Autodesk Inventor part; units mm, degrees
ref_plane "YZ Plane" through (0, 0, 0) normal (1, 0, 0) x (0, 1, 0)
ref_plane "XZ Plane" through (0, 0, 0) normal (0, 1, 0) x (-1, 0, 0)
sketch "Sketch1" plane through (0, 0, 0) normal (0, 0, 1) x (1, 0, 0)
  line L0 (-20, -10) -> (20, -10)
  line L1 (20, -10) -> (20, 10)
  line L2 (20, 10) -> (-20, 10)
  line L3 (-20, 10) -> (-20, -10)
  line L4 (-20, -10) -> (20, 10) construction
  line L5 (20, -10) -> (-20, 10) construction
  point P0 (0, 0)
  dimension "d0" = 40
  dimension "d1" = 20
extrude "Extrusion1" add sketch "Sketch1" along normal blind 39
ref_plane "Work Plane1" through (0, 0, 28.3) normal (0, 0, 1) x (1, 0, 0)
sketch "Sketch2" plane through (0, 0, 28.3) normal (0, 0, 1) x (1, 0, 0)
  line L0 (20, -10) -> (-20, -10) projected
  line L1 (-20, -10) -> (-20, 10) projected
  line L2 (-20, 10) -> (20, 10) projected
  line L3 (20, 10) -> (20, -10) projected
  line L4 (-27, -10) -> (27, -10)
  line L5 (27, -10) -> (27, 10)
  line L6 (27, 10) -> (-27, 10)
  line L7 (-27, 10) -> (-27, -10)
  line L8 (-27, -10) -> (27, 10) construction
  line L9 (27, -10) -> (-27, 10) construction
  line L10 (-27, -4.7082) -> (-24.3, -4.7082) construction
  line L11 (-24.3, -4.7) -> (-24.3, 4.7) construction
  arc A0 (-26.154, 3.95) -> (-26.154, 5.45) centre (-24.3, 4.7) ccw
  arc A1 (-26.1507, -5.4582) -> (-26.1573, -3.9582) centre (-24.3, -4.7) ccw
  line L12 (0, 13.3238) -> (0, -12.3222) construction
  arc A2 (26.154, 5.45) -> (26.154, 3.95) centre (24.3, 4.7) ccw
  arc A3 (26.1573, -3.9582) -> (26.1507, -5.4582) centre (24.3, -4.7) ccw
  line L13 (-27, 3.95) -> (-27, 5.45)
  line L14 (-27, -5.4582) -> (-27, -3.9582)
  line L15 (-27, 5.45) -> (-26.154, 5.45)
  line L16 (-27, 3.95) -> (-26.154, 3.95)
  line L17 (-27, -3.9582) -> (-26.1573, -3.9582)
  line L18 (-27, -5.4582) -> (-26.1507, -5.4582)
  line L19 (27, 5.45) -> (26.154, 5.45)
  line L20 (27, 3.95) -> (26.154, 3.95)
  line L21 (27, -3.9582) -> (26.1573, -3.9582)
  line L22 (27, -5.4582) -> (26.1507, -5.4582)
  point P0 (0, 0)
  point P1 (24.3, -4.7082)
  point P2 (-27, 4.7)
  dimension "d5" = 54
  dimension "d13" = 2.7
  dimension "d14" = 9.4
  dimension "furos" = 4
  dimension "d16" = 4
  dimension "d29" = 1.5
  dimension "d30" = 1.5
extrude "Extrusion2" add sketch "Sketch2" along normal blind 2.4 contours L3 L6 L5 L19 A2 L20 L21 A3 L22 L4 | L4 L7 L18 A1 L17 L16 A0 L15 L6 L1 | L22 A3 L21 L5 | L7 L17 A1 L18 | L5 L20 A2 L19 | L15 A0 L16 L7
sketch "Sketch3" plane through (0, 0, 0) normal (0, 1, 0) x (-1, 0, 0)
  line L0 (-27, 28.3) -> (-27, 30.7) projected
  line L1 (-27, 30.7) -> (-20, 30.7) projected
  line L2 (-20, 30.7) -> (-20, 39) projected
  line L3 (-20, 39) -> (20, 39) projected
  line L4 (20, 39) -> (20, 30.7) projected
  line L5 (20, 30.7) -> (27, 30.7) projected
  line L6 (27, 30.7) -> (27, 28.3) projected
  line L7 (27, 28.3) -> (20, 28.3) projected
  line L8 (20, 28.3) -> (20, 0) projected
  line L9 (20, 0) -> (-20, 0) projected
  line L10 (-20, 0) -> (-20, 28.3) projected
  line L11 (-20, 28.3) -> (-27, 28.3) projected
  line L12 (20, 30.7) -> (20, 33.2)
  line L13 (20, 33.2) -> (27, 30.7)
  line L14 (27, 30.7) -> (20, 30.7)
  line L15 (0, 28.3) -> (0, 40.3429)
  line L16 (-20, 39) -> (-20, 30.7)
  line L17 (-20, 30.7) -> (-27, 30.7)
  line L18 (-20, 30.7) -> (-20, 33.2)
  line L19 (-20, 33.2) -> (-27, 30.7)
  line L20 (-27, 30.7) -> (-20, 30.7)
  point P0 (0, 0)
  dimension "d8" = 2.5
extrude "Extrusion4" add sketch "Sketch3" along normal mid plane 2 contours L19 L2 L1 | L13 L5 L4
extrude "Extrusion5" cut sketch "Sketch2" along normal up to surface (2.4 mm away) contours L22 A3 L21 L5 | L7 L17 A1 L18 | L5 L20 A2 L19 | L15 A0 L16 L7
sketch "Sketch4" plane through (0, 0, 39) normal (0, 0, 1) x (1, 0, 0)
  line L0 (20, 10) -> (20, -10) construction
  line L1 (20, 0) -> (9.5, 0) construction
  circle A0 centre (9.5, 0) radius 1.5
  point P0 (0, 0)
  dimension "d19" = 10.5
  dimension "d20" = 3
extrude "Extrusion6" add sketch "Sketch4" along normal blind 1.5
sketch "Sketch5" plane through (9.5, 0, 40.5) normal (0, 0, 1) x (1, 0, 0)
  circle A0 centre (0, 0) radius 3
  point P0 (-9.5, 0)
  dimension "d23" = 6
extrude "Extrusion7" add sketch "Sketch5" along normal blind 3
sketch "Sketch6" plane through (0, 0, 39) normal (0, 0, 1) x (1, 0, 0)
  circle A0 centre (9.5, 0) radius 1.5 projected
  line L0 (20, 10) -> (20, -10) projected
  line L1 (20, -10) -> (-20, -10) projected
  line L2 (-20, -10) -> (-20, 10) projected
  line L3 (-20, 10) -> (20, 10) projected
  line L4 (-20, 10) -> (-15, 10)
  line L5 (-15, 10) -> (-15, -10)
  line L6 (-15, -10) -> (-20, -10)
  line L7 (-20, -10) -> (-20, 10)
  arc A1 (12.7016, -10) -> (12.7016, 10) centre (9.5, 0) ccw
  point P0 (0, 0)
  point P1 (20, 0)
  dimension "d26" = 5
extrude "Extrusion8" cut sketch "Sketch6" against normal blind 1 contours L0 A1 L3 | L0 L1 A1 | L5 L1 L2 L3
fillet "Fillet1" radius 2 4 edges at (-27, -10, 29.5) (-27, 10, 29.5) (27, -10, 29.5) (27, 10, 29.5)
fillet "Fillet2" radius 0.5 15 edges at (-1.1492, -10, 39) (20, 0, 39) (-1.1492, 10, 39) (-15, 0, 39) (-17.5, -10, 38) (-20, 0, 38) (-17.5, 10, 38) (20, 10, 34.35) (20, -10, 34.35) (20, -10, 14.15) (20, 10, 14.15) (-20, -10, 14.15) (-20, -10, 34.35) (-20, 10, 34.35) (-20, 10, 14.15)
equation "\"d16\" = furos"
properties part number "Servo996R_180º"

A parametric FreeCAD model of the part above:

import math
import FreeCAD as App
import Part
import Sketcher


def edges_at(feature, points):
    """Names of the edges that pass closest to the given points."""
    edges = feature.Shape.Edges
    near = lambda p: min(range(len(edges)), key=lambda i: edges[i].distToShape(Part.Vertex(*p))[0])
    return sorted({f"Edge{near(p) + 1}" for p in points})

doc = App.newDocument("Part")
body = doc.addObject("PartDesign::Body", "Body")

sketch1 = body.newObject("Sketcher::SketchObject", "Sketch")
sketch1.AttachmentSupport = (doc.getObject("XY_Plane"), [""])
sketch1.MapMode = "FlatFace"
sketch1.addGeometry(Part.LineSegment(App.Vector(-20, 10, 0), App.Vector(-20, -10, 0)), False)
sketch1.addGeometry(Part.LineSegment(App.Vector(-20, -10, 0), App.Vector(20, -10, 0)), False)
sketch1.addGeometry(Part.LineSegment(App.Vector(20, -10, 0), App.Vector(20, 10, 0)), False)
sketch1.addGeometry(Part.LineSegment(App.Vector(20, 10, 0), App.Vector(-20, 10, 0)), False)
sketch1.addConstraint(Sketcher.Constraint("Coincident", 0, 2, 1, 1))
sketch1.addConstraint(Sketcher.Constraint("Coincident", 1, 2, 2, 1))
sketch1.addConstraint(Sketcher.Constraint("Coincident", 2, 2, 3, 1))
sketch1.addConstraint(Sketcher.Constraint("Coincident", 3, 2, 0, 1))
sketch1.addConstraint(Sketcher.Constraint("Vertical", 0))
sketch1.addConstraint(Sketcher.Constraint("Horizontal", 1))
sketch1.addConstraint(Sketcher.Constraint("Vertical", 2))
sketch1.addConstraint(Sketcher.Constraint("Horizontal", 3))
sketch1.addConstraint(Sketcher.Constraint("Symmetric", 0, 2, 2, 2, -1, 1))
sketch1.addConstraint(Sketcher.Constraint("DistanceX", 1, 1, 1, 2, 40.0))
sketch1.addConstraint(Sketcher.Constraint("DistanceY", 0, 2, 0, 1, 20.0))
pad1 = body.newObject("PartDesign::Pad", "Pad")
pad1.Profile = sketch1
pad1.Length = 39

sketch2 = body.newObject("Sketcher::SketchObject", "Sketch001")
sketch2.AttachmentSupport = (doc.getObject("XY_Plane"), [""])
sketch2.MapMode = "FlatFace"
sketch2.AttachmentOffset = App.Placement(App.Vector(0, 0, 28.3), App.Rotation())
sketch2.addGeometry(Part.LineSegment(App.Vector(20, 10, 0), App.Vector(20, -10, 0)), False)
sketch2.addGeometry(Part.LineSegment(App.Vector(20, -10, 0), App.Vector(27, -10, 0)), False)
sketch2.addGeometry(Part.LineSegment(App.Vector(27, -10, 0), App.Vector(27, 10, 0)), False)
sketch2.addGeometry(Part.LineSegment(App.Vector(27, 10, 0), App.Vector(20, 10, 0)), False)
sketch2.addGeometry(Part.LineSegment(App.Vector(-27, -10, 0), App.Vector(-20, -10, 0)), False)
sketch2.addGeometry(Part.LineSegment(App.Vector(-20, -10, 0), App.Vector(-20, 10, 0)), False)
sketch2.addGeometry(Part.LineSegment(App.Vector(-20, 10, 0), App.Vector(-27, 10, 0)), False)
sketch2.addGeometry(Part.LineSegment(App.Vector(-27, 10, 0), App.Vector(-27, -10, 0)), False)
sketch2.addConstraint(Sketcher.Constraint("Coincident", 0, 2, 1, 1))
sketch2.addConstraint(Sketcher.Constraint("Coincident", 1, 2, 2, 1))
sketch2.addConstraint(Sketcher.Constraint("Coincident", 2, 2, 3, 1))
sketch2.addConstraint(Sketcher.Constraint("Coincident", 3, 2, 0, 1))
sketch2.addConstraint(Sketcher.Constraint("Coincident", 4, 2, 5, 1))
sketch2.addConstraint(Sketcher.Constraint("Coincident", 5, 2, 6, 1))
sketch2.addConstraint(Sketcher.Constraint("Coincident", 6, 2, 7, 1))
sketch2.addConstraint(Sketcher.Constraint("Coincident", 7, 2, 4, 1))
sketch2.addConstraint(Sketcher.Constraint("Vertical", 0))
sketch2.addConstraint(Sketcher.Constraint("Horizontal", 1))
sketch2.addConstraint(Sketcher.Constraint("Vertical", 2))
sketch2.addConstraint(Sketcher.Constraint("Horizontal", 3))
sketch2.addConstraint(Sketcher.Constraint("Horizontal", 4))
sketch2.addConstraint(Sketcher.Constraint("Vertical", 5))
sketch2.addConstraint(Sketcher.Constraint("Horizontal", 6))
sketch2.addConstraint(Sketcher.Constraint("Vertical", 7))
sketch2.addConstraint(Sketcher.Constraint("Symmetric", 3, 2, 4, 2, -1, 1))
sketch2.addConstraint(Sketcher.Constraint("Symmetric", 1, 2, 6, 2, -1, 1))
sketch2.addConstraint(Sketcher.Constraint("Horizontal", 1, 2, 4, 2))
sketch2.addConstraint(Sketcher.Constraint("DistanceX", 6, 2, 2, 2, 54.0))
sketch2.addConstraint(Sketcher.Constraint("DistanceX", 1, 1, 1, 2, 7.0))
sketch2.addConstraint(Sketcher.Constraint("DistanceY", 0, 2, 0, 1, 20.0))
pad2 = body.newObject("PartDesign::Pad", "Pad001")
pad2.Profile = sketch2
pad2.Length = 2.4

sketch3 = body.newObject("Sketcher::SketchObject", "Sketch002")
sketch3.AttachmentSupport = (doc.getObject("XZ_Plane"), [""])
sketch3.MapMode = "FlatFace"
sketch3.addGeometry(Part.LineSegment(App.Vector(20, 33.2, 0), App.Vector(27, 30.7, 0)), False)
sketch3.addGeometry(Part.LineSegment(App.Vector(27, 30.7, 0), App.Vector(20, 30.7, 0)), False)
sketch3.addGeometry(Part.LineSegment(App.Vector(20, 30.7, 0), App.Vector(20, 33.2, 0)), False)
sketch3.addGeometry(Part.LineSegment(App.Vector(-27, 30.7, 0), App.Vector(-20, 33.2, 0)), False)
sketch3.addGeometry(Part.LineSegment(App.Vector(-20, 33.2, 0), App.Vector(-20, 30.7, 0)), False)
sketch3.addGeometry(Part.LineSegment(App.Vector(-20, 30.7, 0), App.Vector(-27, 30.7, 0)), False)
sketch3.addConstraint(Sketcher.Constraint("Coincident", 0, 2, 1, 1))
sketch3.addConstraint(Sketcher.Constraint("Coincident", 1, 2, 2, 1))
sketch3.addConstraint(Sketcher.Constraint("Coincident", 2, 2, 0, 1))
sketch3.addConstraint(Sketcher.Constraint("Coincident", 3, 2, 4, 1))
sketch3.addConstraint(Sketcher.Constraint("Coincident", 4, 2, 5, 1))
sketch3.addConstraint(Sketcher.Constraint("Coincident", 5, 2, 3, 1))
sketch3.addConstraint(Sketcher.Constraint("Horizontal", 1))
sketch3.addConstraint(Sketcher.Constraint("Vertical", 2))
sketch3.addConstraint(Sketcher.Constraint("Vertical", 4))
sketch3.addConstraint(Sketcher.Constraint("Horizontal", 5))
sketch3.addConstraint(Sketcher.Constraint("Symmetric", 2, 2, 3, 2, -2))
sketch3.addConstraint(Sketcher.Constraint("Symmetric", 0, 2, 5, 2, -2))
sketch3.addConstraint(Sketcher.Constraint("DistanceY", 2, 1, 2, 2, 2.5))
sketch3.addConstraint(Sketcher.Constraint("DistanceX", 1, 2, 1, 1, 7.0))
sketch3.addConstraint(Sketcher.Constraint("DistanceX", -1, 1, 0, 2, 27.0))
sketch3.addConstraint(Sketcher.Constraint("DistanceY", -1, 1, 0, 2, 30.7))
pad3 = body.newObject("PartDesign::Pad", "Pad002")
pad3.Profile = sketch3
pad3.Length = 2
pad3.Midplane = True

sketch4 = body.newObject("Sketcher::SketchObject", "Sketch003")
sketch4.AttachmentSupport = (doc.getObject("XY_Plane"), [""])
sketch4.MapMode = "FlatFace"
sketch4.AttachmentOffset = App.Placement(App.Vector(0, 0, 28.3), App.Rotation())
sketch4.addGeometry(Part.LineSegment(App.Vector(26.1507, -5.4582, 0), App.Vector(27, -5.4582, 0)), False)
sketch4.addGeometry(Part.LineSegment(App.Vector(27, -5.4582, 0), App.Vector(27, -3.9582, 0)), False)
sketch4.addGeometry(Part.LineSegment(App.Vector(27, -3.9582, 0), App.Vector(26.1573, -3.9582, 0)), False)
sketch4.addGeometry(Part.ArcOfCircle(Part.Circle(App.Vector(24.3, -4.7, 0), App.Vector(0, 0, 1), 1.999958), math.radians(21.771618), math.radians(337.72193)), False)
sketch4.addGeometry(Part.LineSegment(App.Vector(-27, -3.9582, 0), App.Vector(-27, -5.4582, 0)), False)
sketch4.addGeometry(Part.LineSegment(App.Vector(-27, -5.4582, 0), App.Vector(-26.1507, -5.4582, 0)), False)
sketch4.addGeometry(Part.ArcOfCircle(Part.Circle(App.Vector(-24.3, -4.7, 0), App.Vector(0, 0, 1), 1.999989), math.radians(-157.72193), math.radians(158.228382)), False)
sketch4.addGeometry(Part.LineSegment(App.Vector(-26.1573, -3.9582, 0), App.Vector(-27, -3.9582, 0)), False)
sketch4.addGeometry(Part.LineSegment(App.Vector(27, 3.95, 0), App.Vector(27, 5.45, 0)), False)
sketch4.addGeometry(Part.LineSegment(App.Vector(27, 5.45, 0), App.Vector(26.154, 5.45, 0)), False)
sketch4.addGeometry(Part.ArcOfCircle(Part.Circle(App.Vector(24.3, 4.7, 0), App.Vector(0, 0, 1), 1.999954), math.radians(22.024846), math.radians(337.975154)), False)
sketch4.addGeometry(Part.LineSegment(App.Vector(26.154, 3.95, 0), App.Vector(27, 3.95, 0)), False)
sketch4.addGeometry(Part.LineSegment(App.Vector(-26.154, 5.45, 0), App.Vector(-27, 5.45, 0)), False)
sketch4.addGeometry(Part.LineSegment(App.Vector(-27, 5.45, 0), App.Vector(-27, 3.95, 0)), False)
sketch4.addGeometry(Part.LineSegment(App.Vector(-27, 3.95, 0), App.Vector(-26.154, 3.95, 0)), False)
sketch4.addGeometry(Part.ArcOfCircle(Part.Circle(App.Vector(-24.3, 4.7, 0), App.Vector(0, 0, 1), 1.999954), math.radians(-157.975154), math.radians(157.975154)), False)
sketch4.addConstraint(Sketcher.Constraint("Coincident", 0, 2, 1, 1))
sketch4.addConstraint(Sketcher.Constraint("Coincident", 1, 2, 2, 1))
sketch4.addConstraint(Sketcher.Constraint("Coincident", 2, 2, 3, 1))
sketch4.addConstraint(Sketcher.Constraint("Coincident", 3, 2, 0, 1))
sketch4.addConstraint(Sketcher.Constraint("Coincident", 4, 2, 5, 1))
sketch4.addConstraint(Sketcher.Constraint("Coincident", 5, 2, 6, 1))
sketch4.addConstraint(Sketcher.Constraint("Coincident", 6, 2, 7, 1))
sketch4.addConstraint(Sketcher.Constraint("Coincident", 7, 2, 4, 1))
sketch4.addConstraint(Sketcher.Constraint("Coincident", 8, 2, 9, 1))
sketch4.addConstraint(Sketcher.Constraint("Coincident", 9, 2, 10, 1))
sketch4.addConstraint(Sketcher.Constraint("Coincident", 10, 2, 11, 1))
sketch4.addConstraint(Sketcher.Constraint("Coincident", 11, 2, 8, 1))
sketch4.addConstraint(Sketcher.Constraint("Coincident", 12, 2, 13, 1))
sketch4.addConstraint(Sketcher.Constraint("Coincident", 13, 2, 14, 1))
sketch4.addConstraint(Sketcher.Constraint("Coincident", 14, 2, 15, 1))
sketch4.addConstraint(Sketcher.Constraint("Coincident", 15, 2, 12, 1))
sketch4.addConstraint(Sketcher.Constraint("Horizontal", 0))
sketch4.addConstraint(Sketcher.Constraint("Vertical", 1))
sketch4.addConstraint(Sketcher.Constraint("Horizontal", 2))
sketch4.addConstraint(Sketcher.Constraint("Vertical", 4))
sketch4.addConstraint(Sketcher.Constraint("Horizontal", 5))
sketch4.addConstraint(Sketcher.Constraint("Horizontal", 7))
sketch4.addConstraint(Sketcher.Constraint("Vertical", 8))
sketch4.addConstraint(Sketcher.Constraint("Horizontal", 9))
sketch4.addConstraint(Sketcher.Constraint("Horizontal", 11))
sketch4.addConstraint(Sketcher.Constraint("Horizontal", 12))
sketch4.addConstraint(Sketcher.Constraint("Vertical", 13))
sketch4.addConstraint(Sketcher.Constraint("Horizontal", 14))
sketch4.addConstraint(Sketcher.Constraint("Equal", 3, 6))
sketch4.addConstraint(Sketcher.Constraint("Equal", 6, 10))
sketch4.addConstraint(Sketcher.Constraint("Equal", 10, 15))
sketch4.addConstraint(Sketcher.Constraint("Symmetric", 6, 3, 10, 3, -1, 1))
sketch4.addConstraint(Sketcher.Constraint("Symmetric", 3, 3, 15, 3, -1, 1))
sketch4.addConstraint(Sketcher.Constraint("Symmetric", 3, 3, 6, 3, -2))
sketch4.addConstraint(Sketcher.Constraint("Symmetric", 0, 2, 4, 2, -2))
sketch4.addConstraint(Sketcher.Constraint("Symmetric", 8, 2, 12, 2, -2))
sketch4.addConstraint(Sketcher.Constraint("Horizontal", 2, 2, 6, 2))
sketch4.addConstraint(Sketcher.Constraint("Horizontal", 11, 2, 13, 2))
sketch4.addConstraint(Sketcher.Constraint("Vertical", 1, 2, 8, 2))
sketch4.addConstraint(Sketcher.Constraint("Vertical", 9, 2, 10, 2))
sketch4.addConstraint(Sketcher.Constraint("Equal", 4, 8))
sketch4.addConstraint(Sketcher.Constraint("Radius", 3, 2.0))
sketch4.addConstraint(Sketcher.Constraint("DistanceY", 1, 1, 1, 2, 1.5))
sketch4.addConstraint(Sketcher.Constraint("DistanceY", 3, 3, 10, 3, 9.4))
sketch4.addConstraint(Sketcher.Constraint("DistanceX", 3, 3, 0, 2, 2.7))
sketch4.addConstraint(Sketcher.Constraint("DistanceX", -1, 1, 0, 2, 27.0))
sketch4.addConstraint(Sketcher.Constraint("DistanceX", 0, 1, 0, 2, 0.8493))
pocket1 = body.newObject("PartDesign::Pocket", "Pocket")
pocket1.Profile = sketch4
pocket1.Length = 2.4
pocket1.Reversed = True

sketch5 = body.newObject("Sketcher::SketchObject", "Sketch004")
sketch5.AttachmentSupport = (doc.getObject("XY_Plane"), [""])
sketch5.MapMode = "FlatFace"
sketch5.AttachmentOffset = App.Placement(App.Vector(0, 0, 39), App.Rotation())
sketch5.addGeometry(Part.Circle(App.Vector(9.5, 0, 0), App.Vector(0, 0, 1), 1.5), False)
sketch5.addConstraint(Sketcher.Constraint("PointOnObject", 0, 3, -1))
sketch5.addConstraint(Sketcher.Constraint("Diameter", 0, 3.0))
sketch5.addConstraint(Sketcher.Constraint("DistanceX", -1, 1, 0, 3, 9.5))
pad4 = body.newObject("PartDesign::Pad", "Pad003")
pad4.Profile = sketch5
pad4.Length = 1.5

sketch6 = body.newObject("Sketcher::SketchObject", "Sketch005")
sketch6.AttachmentSupport = (doc.getObject("XY_Plane"), [""])
sketch6.MapMode = "FlatFace"
sketch6.AttachmentOffset = App.Placement(App.Vector(0, 0, 40.5), App.Rotation())
sketch6.addGeometry(Part.Circle(App.Vector(9.5, 0, 0), App.Vector(0, 0, 1), 3), False)
sketch6.addConstraint(Sketcher.Constraint("PointOnObject", 0, 3, -1))
sketch6.addConstraint(Sketcher.Constraint("Diameter", 0, 6.0))
sketch6.addConstraint(Sketcher.Constraint("DistanceX", -1, 1, 0, 3, 9.5))
pad5 = body.newObject("PartDesign::Pad", "Pad004")
pad5.Profile = sketch6
pad5.Length = 3

sketch7 = body.newObject("Sketcher::SketchObject", "Sketch006")
sketch7.AttachmentSupport = (doc.getObject("XY_Plane"), [""])
sketch7.MapMode = "FlatFace"
sketch7.AttachmentOffset = App.Placement(App.Vector(0, 0, 39), App.Rotation())
sketch7.addGeometry(Part.LineSegment(App.Vector(20, 0, 0), App.Vector(20, 10, 0)), False)
sketch7.addGeometry(Part.LineSegment(App.Vector(20, 10, 0), App.Vector(12.7016, 10, 0)), False)
sketch7.addGeometry(Part.ArcOfCircle(Part.Circle(App.Vector(9.5, 0, 0), App.Vector(0, 0, 1), 10.500012), math.radians(0), math.radians(72.247013)), False)
sketch7.addGeometry(Part.LineSegment(App.Vector(20, -10, 0), App.Vector(20, 0, 0)), False)
sketch7.addGeometry(Part.ArcOfCircle(Part.Circle(App.Vector(9.5, 0, 0), App.Vector(0, 0, 1), 10.500012), math.radians(-72.247013), math.radians(0)), False)
sketch7.addGeometry(Part.LineSegment(App.Vector(12.7016, -10, 0), App.Vector(20, -10, 0)), False)
sketch7.addGeometry(Part.LineSegment(App.Vector(-15, -10, 0), App.Vector(-15, 10, 0)), False)
sketch7.addGeometry(Part.LineSegment(App.Vector(-15, 10, 0), App.Vector(-20, 10, 0)), False)
sketch7.addGeometry(Part.LineSegment(App.Vector(-20, 10, 0), App.Vector(-20, -10, 0)), False)
sketch7.addGeometry(Part.LineSegment(App.Vector(-20, -10, 0), App.Vector(-15, -10, 0)), False)
sketch7.addConstraint(Sketcher.Constraint("Coincident", 0, 2, 1, 1))
sketch7.addConstraint(Sketcher.Constraint("Coincident", 1, 2, 2, 2))
sketch7.addConstraint(Sketcher.Constraint("Tangent", 2, 1, 0, 1))
sketch7.addConstraint(Sketcher.Constraint("Tangent", 3, 2, 4, 2))
sketch7.addConstraint(Sketcher.Constraint("Coincident", 4, 1, 5, 1))
sketch7.addConstraint(Sketcher.Constraint("Coincident", 5, 2, 3, 1))
sketch7.addConstraint(Sketcher.Constraint("Coincident", 6, 2, 7, 1))
sketch7.addConstraint(Sketcher.Constraint("Coincident", 7, 2, 8, 1))
sketch7.addConstraint(Sketcher.Constraint("Coincident", 8, 2, 9, 1))
sketch7.addConstraint(Sketcher.Constraint("Coincident", 9, 2, 6, 1))
sketch7.addConstraint(Sketcher.Constraint("Vertical", 0))
sketch7.addConstraint(Sketcher.Constraint("Horizontal", 1))
sketch7.addConstraint(Sketcher.Constraint("Vertical", 3))
sketch7.addConstraint(Sketcher.Constraint("Horizontal", 5))
sketch7.addConstraint(Sketcher.Constraint("Vertical", 6))
sketch7.addConstraint(Sketcher.Constraint("Horizontal", 7))
sketch7.addConstraint(Sketcher.Constraint("Vertical", 8))
sketch7.addConstraint(Sketcher.Constraint("Horizontal", 9))
sketch7.addConstraint(Sketcher.Constraint("Coincident", 4, 3, 2, 3))
sketch7.addConstraint(Sketcher.Constraint("Equal", 2, 4))
sketch7.addConstraint(Sketcher.Constraint("Symmetric", 5, 2, 7, 2, -1, 1))
sketch7.addConstraint(Sketcher.Constraint("Symmetric", 1, 2, 4, 1, -1))
sketch7.addConstraint(Sketcher.Constraint("Horizontal", 5, 2, 8, 2))
sketch7.addConstraint(Sketcher.Constraint("DistanceX", 7, 2, 7, 1, 5.0))
sketch7.addConstraint(Sketcher.Constraint("Radius", 2, 10.5))
sketch7.addConstraint(Sketcher.Constraint("DistanceY", 0, 1, 0, 2, 10.0))
sketch7.addConstraint(Sketcher.Constraint("DistanceX", -1, 1, 0, 2, 20.0))
pocket2 = body.newObject("PartDesign::Pocket", "Pocket001")
pocket2.Profile = sketch7
pocket2.Length = 1
doc.recompute()

fillet = body.newObject("PartDesign::Fillet", "Fillet")
fillet.Base = (pocket2, edges_at(pocket2, [
    (-27, -10, 29.5),
    (-27, 10, 29.5),
    (27, -10, 29.5),
    (27, 10, 29.5),
]))
fillet.Radius = 2
doc.recompute()

fillet2 = body.newObject("PartDesign::Fillet", "Fillet001")
fillet2.Base = (fillet, edges_at(fillet, [
    (-1.149, -10, 39),
    (20, 0, 39),
    (-1.149, 10, 39),
    (-15, 0, 39),
    (-17.5, -10, 38),
    (-20, 0, 38),
    (-17.5, 10, 38),
    (20, 10, 34.35),
    (20, -10, 34.35),
    (20, -10, 14.15),
    (20, 10, 14.15),
    (-20, -10, 14.15),
    (-20, -10, 34.35),
    (-20, 10, 34.35),
    (-20, 10, 14.15),
]))
fillet2.Radius = 0.5

doc.recompute()
